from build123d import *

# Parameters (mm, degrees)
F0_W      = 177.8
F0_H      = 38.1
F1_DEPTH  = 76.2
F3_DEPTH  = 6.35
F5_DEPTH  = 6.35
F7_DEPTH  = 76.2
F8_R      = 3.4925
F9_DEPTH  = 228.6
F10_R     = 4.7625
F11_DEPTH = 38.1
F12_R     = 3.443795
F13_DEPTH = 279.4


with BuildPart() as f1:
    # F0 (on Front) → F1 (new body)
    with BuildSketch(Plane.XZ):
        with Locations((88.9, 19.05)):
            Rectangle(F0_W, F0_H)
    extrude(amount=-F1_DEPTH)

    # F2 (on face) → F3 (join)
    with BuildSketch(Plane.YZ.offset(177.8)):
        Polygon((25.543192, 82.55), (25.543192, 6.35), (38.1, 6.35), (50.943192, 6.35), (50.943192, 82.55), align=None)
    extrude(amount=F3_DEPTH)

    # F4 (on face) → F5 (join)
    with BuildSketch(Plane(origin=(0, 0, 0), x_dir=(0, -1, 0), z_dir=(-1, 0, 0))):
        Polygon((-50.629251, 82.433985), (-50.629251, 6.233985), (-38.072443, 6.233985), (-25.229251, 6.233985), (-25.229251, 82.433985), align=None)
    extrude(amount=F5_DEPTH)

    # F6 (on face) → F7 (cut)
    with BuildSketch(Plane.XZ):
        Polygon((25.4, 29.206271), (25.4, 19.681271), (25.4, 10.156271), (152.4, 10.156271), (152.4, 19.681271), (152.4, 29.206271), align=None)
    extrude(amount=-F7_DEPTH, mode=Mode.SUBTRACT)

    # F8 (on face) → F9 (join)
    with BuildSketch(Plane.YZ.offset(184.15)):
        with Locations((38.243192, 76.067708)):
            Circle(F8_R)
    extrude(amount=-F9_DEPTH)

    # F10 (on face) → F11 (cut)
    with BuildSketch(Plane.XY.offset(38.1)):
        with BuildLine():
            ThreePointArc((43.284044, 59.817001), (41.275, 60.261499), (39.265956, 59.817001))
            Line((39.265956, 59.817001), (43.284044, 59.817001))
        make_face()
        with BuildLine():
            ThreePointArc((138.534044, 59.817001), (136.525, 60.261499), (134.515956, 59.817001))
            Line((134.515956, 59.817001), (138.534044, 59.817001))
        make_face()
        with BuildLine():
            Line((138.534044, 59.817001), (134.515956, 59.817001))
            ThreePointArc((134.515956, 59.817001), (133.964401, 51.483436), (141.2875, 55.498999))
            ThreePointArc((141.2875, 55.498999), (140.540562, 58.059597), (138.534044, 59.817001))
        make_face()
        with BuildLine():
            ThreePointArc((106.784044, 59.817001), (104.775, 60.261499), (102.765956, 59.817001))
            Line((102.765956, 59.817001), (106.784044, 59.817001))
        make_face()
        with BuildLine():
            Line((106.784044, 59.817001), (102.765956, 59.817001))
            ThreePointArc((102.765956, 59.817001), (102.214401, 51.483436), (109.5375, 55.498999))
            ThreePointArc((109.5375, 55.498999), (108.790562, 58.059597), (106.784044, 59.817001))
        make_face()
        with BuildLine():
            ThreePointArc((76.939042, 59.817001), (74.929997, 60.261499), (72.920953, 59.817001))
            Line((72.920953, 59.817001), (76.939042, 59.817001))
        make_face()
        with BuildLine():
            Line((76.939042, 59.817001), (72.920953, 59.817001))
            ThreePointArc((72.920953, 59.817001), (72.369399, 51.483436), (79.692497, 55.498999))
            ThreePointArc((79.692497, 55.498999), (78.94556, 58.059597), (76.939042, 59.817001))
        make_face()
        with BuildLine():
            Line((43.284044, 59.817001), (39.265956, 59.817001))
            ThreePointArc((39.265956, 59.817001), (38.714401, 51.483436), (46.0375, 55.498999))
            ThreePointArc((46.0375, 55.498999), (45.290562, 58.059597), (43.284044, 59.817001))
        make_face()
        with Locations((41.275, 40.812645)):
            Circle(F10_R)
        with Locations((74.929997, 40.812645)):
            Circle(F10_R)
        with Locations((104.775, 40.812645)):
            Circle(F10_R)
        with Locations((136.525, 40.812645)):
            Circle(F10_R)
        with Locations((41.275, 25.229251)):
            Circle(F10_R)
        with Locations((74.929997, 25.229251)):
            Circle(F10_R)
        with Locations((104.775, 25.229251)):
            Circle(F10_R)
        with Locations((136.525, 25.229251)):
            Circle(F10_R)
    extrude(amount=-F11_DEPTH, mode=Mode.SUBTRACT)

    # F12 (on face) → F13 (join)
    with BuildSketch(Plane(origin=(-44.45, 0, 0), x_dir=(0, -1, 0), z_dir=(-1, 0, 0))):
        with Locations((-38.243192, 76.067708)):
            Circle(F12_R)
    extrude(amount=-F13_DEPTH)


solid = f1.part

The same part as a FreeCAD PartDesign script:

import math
import FreeCAD as App
import Part
import Sketcher
from FreeCAD import Vector
Q = App.Units.Quantity

doc = App.newDocument("Part")
params = doc.addObject("Spreadsheet::Sheet", "Params")
for row, (alias, value) in enumerate([
    ("sketch1_width", "7 in"),
    ("sketch1_height", "1.5 in"),
    ("pad1_length", "3 in"),
    ("sketch2_width", "1 in"),
    ("sketch2_height", "3 in"),
    ("pad2_length", "0.25 in"),
    ("sketch3_width", "1 in"),
    ("sketch3_height", "3 in"),
    ("pad3_length", "0.25 in"),
    ("sketch4_width", "5 in"),
    ("sketch4_height", "0.75 in"),
    ("pocket1_length", "3 in"),
    ("sketch5_diameter", "0.275 in"),
    ("pad4_length", "9 in"),
    ("sketch6_diameter", "0.375 in"),
    ("pocket2_length", "1.5 in"),
    ("pad5_length", "11 in"),
], start=1):
    params.set(f"A{row}", alias)
    params.set(f"B{row}", "=" + value)
    params.setAlias(f"B{row}", alias)

body = doc.addObject("PartDesign::Body", "Body")

sketch1 = doc.addObject("Sketcher::SketchObject", "Sketch")
body.addObject(sketch1)
sketch1.AttachmentSupport = (doc.XZ_Plane, [""])
sketch1.MapMode = "FlatFace"
sketch1.addGeometry(Part.LineSegment(Vector(0, 38, 0), Vector(0, 0, 0)), False)
sketch1.addGeometry(Part.LineSegment(Vector(0, 0, 0), Vector(178, 0, 0)), False)
sketch1.addGeometry(Part.LineSegment(Vector(178, 0, 0), Vector(178, 38, 0)), False)
sketch1.addGeometry(Part.LineSegment(Vector(178, 38, 0), Vector(0, 38, 0)), False)
sketch1.addConstraint(Sketcher.Constraint("Coincident", 0, 2, 1, 1))
sketch1.addConstraint(Sketcher.Constraint("Coincident", 1, 2, 2, 1))
sketch1.addConstraint(Sketcher.Constraint("Coincident", 2, 2, 3, 1))
sketch1.addConstraint(Sketcher.Constraint("Coincident", 3, 2, 0, 1))
sketch1.addConstraint(Sketcher.Constraint("Vertical", 0))
sketch1.addConstraint(Sketcher.Constraint("Horizontal", 1))
sketch1.addConstraint(Sketcher.Constraint("Vertical", 2))
sketch1.addConstraint(Sketcher.Constraint("Horizontal", 3))
sketch1.addConstraint(Sketcher.Constraint("Coincident", 0, 2, -1, 1))
sketch1.addConstraint(Sketcher.Constraint("DistanceX", 1, 1, 1, 2, Q("7 in")))
sketch1.addConstraint(Sketcher.Constraint("DistanceY", 0, 2, 0, 1, Q("1.5 in")))
sketch1.setExpression("Constraints[9]", "Params.sketch1_width")
sketch1.setExpression("Constraints[10]", "Params.sketch1_height")
pad1 = doc.addObject("PartDesign::Pad", "Pad")
body.addObject(pad1)
pad1.Profile = sketch1
pad1.setExpression("Length", "Params.pad1_length")
pad1.Reversed = True

sketch2 = doc.addObject("Sketcher::SketchObject", "Sketch001")
body.addObject(sketch2)
sketch2.AttachmentSupport = (doc.YZ_Plane, [""])
sketch2.MapMode = "FlatFace"
sketch2.AttachmentOffset = App.Placement(Vector(0, 0, 7 * 25.4), App.Rotation())
sketch2.addGeometry(Part.LineSegment(Vector(26, 83, 0), Vector(26, 6, 0)), False)
sketch2.addGeometry(Part.LineSegment(Vector(26, 6, 0), Vector(51, 6, 0)), False)
sketch2.addGeometry(Part.LineSegment(Vector(51, 6, 0), Vector(51, 83, 0)), False)
sketch2.addGeometry(Part.LineSegment(Vector(51, 83, 0), Vector(26, 83, 0)), False)
sketch2.addConstraint(Sketcher.Constraint("Coincident", 0, 2, 1, 1))
sketch2.addConstraint(Sketcher.Constraint("Coincident", 1, 2, 2, 1))
sketch2.addConstraint(Sketcher.Constraint("Coincident", 2, 2, 3, 1))
sketch2.addConstraint(Sketcher.Constraint("Coincident", 3, 2, 0, 1))
sketch2.addConstraint(Sketcher.Constraint("Vertical", 0))
sketch2.addConstraint(Sketcher.Constraint("Horizontal", 1))
sketch2.addConstraint(Sketcher.Constraint("Vertical", 2))
sketch2.addConstraint(Sketcher.Constraint("Horizontal", 3))
sketch2.addConstraint(Sketcher.Constraint("DistanceX", 1, 1, 1, 2, Q("1 in")))
sketch2.addConstraint(Sketcher.Constraint("DistanceY", 0, 2, 0, 1, Q("3 in")))
sketch2.addConstraint(Sketcher.Constraint("DistanceY", -1, 1, 0, 2, Q("0.25 in")))
sketch2.addConstraint(Sketcher.Constraint("DistanceX", -1, 1, 0, 2, 25.543192))
sketch2.setExpression("Constraints[8]", "Params.sketch2_width")
sketch2.setExpression("Constraints[9]", "Params.sketch2_height")
pad2 = doc.addObject("PartDesign::Pad", "Pad001")
body.addObject(pad2)
pad2.Profile = sketch2
pad2.setExpression("Length", "Params.pad2_length")

sketch3 = doc.addObject("Sketcher::SketchObject", "Sketch002")
body.addObject(sketch3)
sketch3.AttachmentSupport = (doc.YZ_Plane, [""])
sketch3.MapMode = "FlatFace"
sketch3.addGeometry(Part.LineSegment(Vector(51, 82, 0), Vector(51, 6, 0)), False)
sketch3.addGeometry(Part.LineSegment(Vector(51, 6, 0), Vector(25, 6, 0)), False)
sketch3.addGeometry(Part.LineSegment(Vector(25, 6, 0), Vector(25, 82, 0)), False)
sketch3.addGeometry(Part.LineSegment(Vector(25, 82, 0), Vector(51, 82, 0)), False)
sketch3.addConstraint(Sketcher.Constraint("Coincident", 0, 2, 1, 1))
sketch3.addConstraint(Sketcher.Constraint("Coincident", 1, 2, 2, 1))
sketch3.addConstraint(Sketcher.Constraint("Coincident", 2, 2, 3, 1))
sketch3.addConstraint(Sketcher.Constraint("Coincident", 3, 2, 0, 1))
sketch3.addConstraint(Sketcher.Constraint("Vertical", 0))
sketch3.addConstraint(Sketcher.Constraint("Horizontal", 1))
sketch3.addConstraint(Sketcher.Constraint("Vertical", 2))
sketch3.addConstraint(Sketcher.Constraint("Horizontal", 3))
sketch3.addConstraint(Sketcher.Constraint("DistanceX", 1, 2, 1, 1, Q("1 in")))
sketch3.addConstraint(Sketcher.Constraint("DistanceY", 0, 2, 0, 1, Q("3 in")))
sketch3.addConstraint(Sketcher.Constraint("DistanceX", -1, 1, 0, 2, 50.629251))
sketch3.addConstraint(Sketcher.Constraint("DistanceY", -1, 1, 0, 2, 6.233985))
sketch3.setExpression("Constraints[8]", "Params.sketch3_width")
sketch3.setExpression("Constraints[9]", "Params.sketch3_height")
pad3 = doc.addObject("PartDesign::Pad", "Pad002")
body.addObject(pad3)
pad3.Profile = sketch3
pad3.setExpression("Length", "Params.pad3_length")
pad3.Reversed = True

sketch4 = doc.addObject("Sketcher::SketchObject", "Sketch003")
body.addObject(sketch4)
sketch4.AttachmentSupport = (doc.XZ_Plane, [""])
sketch4.MapMode = "FlatFace"
sketch4.addGeometry(Part.LineSegment(Vector(25, 29, 0), Vector(25, 10, 0)), False)
sketch4.addGeometry(Part.LineSegment(Vector(25, 10, 0), Vector(152, 10, 0)), False)
sketch4.addGeometry(Part.LineSegment(Vector(152, 10, 0), Vector(152, 29, 0)), False)
sketch4.addGeometry(Part.LineSegment(Vector(152, 29, 0), Vector(25, 29, 0)), False)
sketch4.addConstraint(Sketcher.Constraint("Coincident", 0, 2, 1, 1))
sketch4.addConstraint(Sketcher.Constraint("Coincident", 1, 2, 2, 1))
sketch4.addConstraint(Sketcher.Constraint("Coincident", 2, 2, 3, 1))
sketch4.addConstraint(Sketcher.Constraint("Coincident", 3, 2, 0, 1))
sketch4.addConstraint(Sketcher.Constraint("Vertical", 0))
sketch4.addConstraint(Sketcher.Constraint("Horizontal", 1))
sketch4.addConstraint(Sketcher.Constraint("Vertical", 2))
sketch4.addConstraint(Sketcher.Constraint("Horizontal", 3))
sketch4.addConstraint(Sketcher.Constraint("DistanceX", 1, 1, 1, 2, Q("5 in")))
sketch4.addConstraint(Sketcher.Constraint("DistanceX", -1, 1, 0, 2, Q("1 in")))
sketch4.addConstraint(Sketcher.Constraint("DistanceY", 0, 2, 0, 1, Q("0.75 in")))
sketch4.addConstraint(Sketcher.Constraint("DistanceY", -1, 1, 0, 2, 10.156271))
sketch4.setExpression("Constraints[8]", "Params.sketch4_width")
sketch4.setExpression("Constraints[10]", "Params.sketch4_height")
pocket1 = doc.addObject("PartDesign::Pocket", "Pocket")
body.addObject(pocket1)
pocket1.Profile = sketch4
pocket1.setExpression("Length", "Params.pocket1_length")

sketch5 = doc.addObject("Sketcher::SketchObject", "Sketch004")
body.addObject(sketch5)
sketch5.AttachmentSupport = (doc.YZ_Plane, [""])
sketch5.MapMode = "FlatFace"
sketch5.AttachmentOffset = App.Placement(Vector(0, 0, 7.25 * 25.4), App.Rotation())
sketch5.addGeometry(Part.Circle(Vector(38.2, 76.1, 0), Vector(0, 0, 1), 3.5), False)
sketch5.addConstraint(Sketcher.Constraint("Diameter", 0, Q("0.275 in")))
sketch5.addConstraint(Sketcher.Constraint("DistanceX", -1, 1, 0, 3, 38.243192))
sketch5.addConstraint(Sketcher.Constraint("DistanceY", -1, 1, 0, 3, 76.067708))
sketch5.setExpression("Constraints[0]", "Params.sketch5_diameter")
pad4 = doc.addObject("PartDesign::Pad", "Pad003")
body.addObject(pad4)
pad4.Profile = sketch5
pad4.setExpression("Length", "Params.pad4_length")
pad4.Reversed = True

sketch6 = doc.addObject("Sketcher::SketchObject", "Sketch005")
body.addObject(sketch6)
sketch6.AttachmentSupport = (doc.XY_Plane, [""])
sketch6.MapMode = "FlatFace"
sketch6.AttachmentOffset = App.Placement(Vector(0, 0, 1.5 * 25.4), App.Rotation())
sketch6.addGeometry(Part.ArcOfCircle(Part.Circle(Vector(41.3, 55.5, 0), Vector(0, 0, 1), 4.8), math.radians(65), math.radians(115)), False)
sketch6.addGeometry(Part.ArcOfCircle(Part.Circle(Vector(41.3, 55.5, 0), Vector(0, 0, 1), 4.8), math.radians(115), math.radians(360)), False)
sketch6.addGeometry(Part.ArcOfCircle(Part.Circle(Vector(41.3, 55.5, 0), Vector(0, 0, 1), 4.8), math.radians(0), math.radians(65)), False)
sketch6.addGeometry(Part.ArcOfCircle(Part.Circle(Vector(136.5, 55.5, 0), Vector(0, 0, 1), 4.8), math.radians(65), math.radians(115)), False)
sketch6.addGeometry(Part.ArcOfCircle(Part.Circle(Vector(136.5, 55.5, 0), Vector(0, 0, 1), 4.8), math.radians(115), math.radians(360)), False)
sketch6.addGeometry(Part.ArcOfCircle(Part.Circle(Vector(136.5, 55.5, 0), Vector(0, 0, 1), 4.8), math.radians(0), math.radians(65)), False)
sketch6.addGeometry(Part.ArcOfCircle(Part.Circle(Vector(104.8, 55.5, 0), Vector(0, 0, 1), 4.8), math.radians(65), math.radians(115)), False)
sketch6.addGeometry(Part.ArcOfCircle(Part.Circle(Vector(104.8, 55.5, 0), Vector(0, 0, 1), 4.8), math.radians(115), math.radians(360)), False)
sketch6.addGeometry(Part.ArcOfCircle(Part.Circle(Vector(104.8, 55.5, 0), Vector(0, 0, 1), 4.8), math.radians(0), math.radians(65)), False)
sketch6.addGeometry(Part.ArcOfCircle(Part.Circle(Vector(74.9, 55.5, 0), Vector(0, 0, 1), 4.8), math.radians(65), math.radians(115)), False)
sketch6.addGeometry(Part.ArcOfCircle(Part.Circle(Vector(74.9, 55.5, 0), Vector(0, 0, 1), 4.8), math.radians(115), math.radians(360)), False)
sketch6.addGeometry(Part.ArcOfCircle(Part.Circle(Vector(74.9, 55.5, 0), Vector(0, 0, 1), 4.8), math.radians(0), math.radians(65)), False)
sketch6.addGeometry(Part.Circle(Vector(41.3, 40.8, 0), Vector(0, 0, 1), 4.8), False)
sketch6.addGeometry(Part.Circle(Vector(74.9, 40.8, 0), Vector(0, 0, 1), 4.8), False)
sketch6.addGeometry(Part.Circle(Vector(104.8, 40.8, 0), Vector(0, 0, 1), 4.8), False)
sketch6.addGeometry(Part.Circle(Vector(136.5, 40.8, 0), Vector(0, 0, 1), 4.8), False)
sketch6.addGeometry(Part.Circle(Vector(41.3, 25.2, 0), Vector(0, 0, 1), 4.8), False)
sketch6.addGeometry(Part.Circle(Vector(74.9, 25.2, 0), Vector(0, 0, 1), 4.8), False)
sketch6.addGeometry(Part.Circle(Vector(104.8, 25.2, 0), Vector(0, 0, 1), 4.8), False)
sketch6.addGeometry(Part.Circle(Vector(136.5, 25.2, 0), Vector(0, 0, 1), 4.8), False)
sketch6.addConstraint(Sketcher.Constraint("Tangent", 0, 2, 1, 1))
sketch6.addConstraint(Sketcher.Constraint("Tangent", 1, 2, 2, 1))
sketch6.addConstraint(Sketcher.Constraint("Tangent", 2, 2, 0, 1))
sketch6.addConstraint(Sketcher.Constraint("Tangent", 3, 2, 4, 1))
sketch6.addConstraint(Sketcher.Constraint("Tangent", 4, 2, 5, 1))
sketch6.addConstraint(Sketcher.Constraint("Tangent", 5, 2, 3, 1))
sketch6.addConstraint(Sketcher.Constraint("Tangent", 6, 2, 7, 1))
sketch6.addConstraint(Sketcher.Constraint("Tangent", 7, 2, 8, 1))
sketch6.addConstraint(Sketcher.Constraint("Tangent", 8, 2, 6, 1))
sketch6.addConstraint(Sketcher.Constraint("Tangent", 9, 2, 10, 1))
sketch6.addConstraint(Sketcher.Constraint("Tangent", 10, 2, 11, 1))
sketch6.addConstraint(Sketcher.Constraint("Tangent", 11, 2, 9, 1))
sketch6.addConstraint(Sketcher.Constraint("Equal", 0, 3))
sketch6.addConstraint(Sketcher.Constraint("Equal", 3, 6))
sketch6.addConstraint(Sketcher.Constraint("Equal", 8, 10))
sketch6.addConstraint(Sketcher.Constraint("Equal", 10, 12))
sketch6.addConstraint(Sketcher.Constraint("Equal", 12, 13))
sketch6.addConstraint(Sketcher.Constraint("Equal", 13, 14))
sketch6.addConstraint(Sketcher.Constraint("Equal", 14, 15))
sketch6.addConstraint(Sketcher.Constraint("Equal", 15, 16))
sketch6.addConstraint(Sketcher.Constraint("Equal", 16, 17))
sketch6.addConstraint(Sketcher.Constraint("Equal", 17, 18))
sketch6.addConstraint(Sketcher.Constraint("Equal", 18, 19))
sketch6.addConstraint(Sketcher.Constraint("Horizontal", 0, 3, 3, 3))
sketch6.addConstraint(Sketcher.Constraint("Horizontal", 3, 3, 6, 3))
sketch6.addConstraint(Sketcher.Constraint("Horizontal", 8, 3, 10, 3))
sketch6.addConstraint(Sketcher.Constraint("Horizontal", 12, 3, 13, 3))
sketch6.addConstraint(Sketcher.Constraint("Horizontal", 13, 3, 14, 3))
sketch6.addConstraint(Sketcher.Constraint("Horizontal", 14, 3, 15, 3))
sketch6.addConstraint(Sketcher.Constraint("Horizontal", 16, 3, 17, 3))
sketch6.addConstraint(Sketcher.Constraint("Horizontal", 17, 3, 18, 3))
sketch6.addConstraint(Sketcher.Constraint("Horizontal", 18, 3, 19, 3))
sketch6.addConstraint(Sketcher.Constraint("Horizontal", 11, 3, 1, 2))
sketch6.addConstraint(Sketcher.Constraint("Horizontal", 0, 2, 2, 2))
sketch6.addConstraint(Sketcher.Constraint("Horizontal", 2, 2, 3, 2))
sketch6.addConstraint(Sketcher.Constraint("Horizontal", 1, 2, 4, 2))
sketch6.addConstraint(Sketcher.Constraint("Horizontal", 3, 2, 5, 2))
sketch6.addConstraint(Sketcher.Constraint("Horizontal", 5, 2, 6, 2))
sketch6.addConstraint(Sketcher.Constraint("Horizontal", 4, 2, 7, 2))
sketch6.addConstraint(Sketcher.Constraint("Horizontal", 6, 2, 8, 2))
sketch6.addConstraint(Sketcher.Constraint("Horizontal", 8, 2, 9, 2))
sketch6.addConstraint(Sketcher.Constraint("Horizontal", 7, 2, 10, 2))
sketch6.addConstraint(Sketcher.Constraint("Horizontal", 9, 2, 11, 2))
sketch6.addConstraint(Sketcher.Constraint("Vertical", 2, 3, 12, 3))
sketch6.addConstraint(Sketcher.Constraint("Vertical", 10, 3, 13, 3))
sketch6.addConstraint(Sketcher.Constraint("Vertical", 8, 3, 14, 3))
sketch6.addConstraint(Sketcher.Constraint("Vertical", 5, 3, 15, 3))
sketch6.addConstraint(Sketcher.Constraint("Vertical", 12, 3, 16, 3))
sketch6.addConstraint(Sketcher.Constraint("Vertical", 13, 3, 17, 3))
sketch6.addConstraint(Sketcher.Constraint("Vertical", 14, 3, 18, 3))
sketch6.addConstraint(Sketcher.Constraint("Vertical", 15, 3, 19, 3))
sketch6.addConstraint(Sketcher.Constraint("Diameter", 12, Q("0.375 in")))
sketch6.addConstraint(Sketcher.Constraint("DistanceX", 0, 3, 6, 3, Q("2.5 in")))
sketch6.addConstraint(Sketcher.Constraint("DistanceX", -1, 1, 9, 3, Q("2.9499999 in")))
sketch6.addConstraint(Sketcher.Constraint("DistanceX", 0, 3, 3, 3, Q("3.75 in")))
sketch6.addConstraint(Sketcher.Constraint("DistanceY", 1, 3, 0, 2, Q("0.1700001 in")))
sketch6.addConstraint(Sketcher.Constraint("DistanceX", -1, 1, 0, 3, Q("1.625 in")))
sketch6.addConstraint(Sketcher.Constraint("DistanceY", -1, 1, 1, 3, Q("2.1849999 in")))
sketch6.addConstraint(Sketcher.Constraint("DistanceY", -1, 1, 16, 3, 25.229251))
sketch6.addConstraint(Sketcher.Constraint("DistanceY", 13, 3, 9, 3, 14.68636))
sketch6.setExpression("Constraints[51]", "Params.sketch6_diameter")
pocket2 = doc.addObject("PartDesign::Pocket", "Pocket001")
body.addObject(pocket2)
pocket2.Profile = sketch6
pocket2.setExpression("Length", "Params.pocket2_length")

sketch7 = doc.addObject("Sketcher::SketchObject", "Sketch006")
body.addObject(sketch7)
sketch7.AttachmentSupport = (doc.YZ_Plane, [""])
sketch7.MapMode = "FlatFace"
sketch7.AttachmentOffset = App.Placement(Vector(0, 0, -1.75 * 25.4), App.Rotation())
sketch7.addGeometry(Part.Circle(Vector(38.2, 76.1, 0), Vector(0, 0, 1), 3.4), False)
sketch7.addConstraint(Sketcher.Constraint("Diameter", 0, 6.88759))
sketch7.addConstraint(Sketcher.Constraint("DistanceX", -1, 1, 0, 3, 38.243192))
sketch7.addConstraint(Sketcher.Constraint("DistanceY", -1, 1, 0, 3, 76.067708))
pad5 = doc.addObject("PartDesign::Pad", "Pad004")
body.addObject(pad5)
pad5.Profile = sketch7
pad5.setExpression("Length", "Params.pad5_length")

doc.recompute()
